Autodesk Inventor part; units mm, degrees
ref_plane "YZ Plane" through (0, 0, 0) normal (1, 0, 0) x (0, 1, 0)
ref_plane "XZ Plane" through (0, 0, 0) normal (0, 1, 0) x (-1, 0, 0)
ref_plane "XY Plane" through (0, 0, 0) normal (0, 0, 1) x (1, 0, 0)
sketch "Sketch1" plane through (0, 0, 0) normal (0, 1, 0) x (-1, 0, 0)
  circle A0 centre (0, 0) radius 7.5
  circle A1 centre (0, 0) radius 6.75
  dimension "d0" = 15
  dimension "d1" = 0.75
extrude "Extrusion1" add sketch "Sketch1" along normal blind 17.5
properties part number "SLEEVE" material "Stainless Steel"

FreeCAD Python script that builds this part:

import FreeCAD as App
import Part
import Sketcher

V = App.Vector

doc = App.newDocument("Part")
body = doc.addObject("PartDesign::Body", "Body")

# Sketch on XZ plane
sketch1 = body.newObject("Sketcher::SketchObject", "Sketch")
sketch1.AttachmentSupport = (doc.getObject("XZ_Plane"), [""])
sketch1.MapMode = "FlatFace"
sketch1.addGeometry([
    Part.Circle(V(0, 0, 0), V(0, 0, 1), 8),
    Part.Circle(V(0, 0, 0), V(0, 0, 1), 7),
], False)
sketch1.addConstraint([
    Sketcher.Constraint("Coincident", 0, 3, -1, 1),
    Sketcher.Constraint("Coincident", 1, 3, -1, 1),
    Sketcher.Constraint("Diameter", 0, 15.0),
    Sketcher.Constraint("Diameter", 1, 13.5),
])
pad1 = body.newObject("PartDesign::Pad", "Pad")
pad1.Profile = sketch1
pad1.Length = 17.5
pad1.Reversed = True

doc.recompute()
